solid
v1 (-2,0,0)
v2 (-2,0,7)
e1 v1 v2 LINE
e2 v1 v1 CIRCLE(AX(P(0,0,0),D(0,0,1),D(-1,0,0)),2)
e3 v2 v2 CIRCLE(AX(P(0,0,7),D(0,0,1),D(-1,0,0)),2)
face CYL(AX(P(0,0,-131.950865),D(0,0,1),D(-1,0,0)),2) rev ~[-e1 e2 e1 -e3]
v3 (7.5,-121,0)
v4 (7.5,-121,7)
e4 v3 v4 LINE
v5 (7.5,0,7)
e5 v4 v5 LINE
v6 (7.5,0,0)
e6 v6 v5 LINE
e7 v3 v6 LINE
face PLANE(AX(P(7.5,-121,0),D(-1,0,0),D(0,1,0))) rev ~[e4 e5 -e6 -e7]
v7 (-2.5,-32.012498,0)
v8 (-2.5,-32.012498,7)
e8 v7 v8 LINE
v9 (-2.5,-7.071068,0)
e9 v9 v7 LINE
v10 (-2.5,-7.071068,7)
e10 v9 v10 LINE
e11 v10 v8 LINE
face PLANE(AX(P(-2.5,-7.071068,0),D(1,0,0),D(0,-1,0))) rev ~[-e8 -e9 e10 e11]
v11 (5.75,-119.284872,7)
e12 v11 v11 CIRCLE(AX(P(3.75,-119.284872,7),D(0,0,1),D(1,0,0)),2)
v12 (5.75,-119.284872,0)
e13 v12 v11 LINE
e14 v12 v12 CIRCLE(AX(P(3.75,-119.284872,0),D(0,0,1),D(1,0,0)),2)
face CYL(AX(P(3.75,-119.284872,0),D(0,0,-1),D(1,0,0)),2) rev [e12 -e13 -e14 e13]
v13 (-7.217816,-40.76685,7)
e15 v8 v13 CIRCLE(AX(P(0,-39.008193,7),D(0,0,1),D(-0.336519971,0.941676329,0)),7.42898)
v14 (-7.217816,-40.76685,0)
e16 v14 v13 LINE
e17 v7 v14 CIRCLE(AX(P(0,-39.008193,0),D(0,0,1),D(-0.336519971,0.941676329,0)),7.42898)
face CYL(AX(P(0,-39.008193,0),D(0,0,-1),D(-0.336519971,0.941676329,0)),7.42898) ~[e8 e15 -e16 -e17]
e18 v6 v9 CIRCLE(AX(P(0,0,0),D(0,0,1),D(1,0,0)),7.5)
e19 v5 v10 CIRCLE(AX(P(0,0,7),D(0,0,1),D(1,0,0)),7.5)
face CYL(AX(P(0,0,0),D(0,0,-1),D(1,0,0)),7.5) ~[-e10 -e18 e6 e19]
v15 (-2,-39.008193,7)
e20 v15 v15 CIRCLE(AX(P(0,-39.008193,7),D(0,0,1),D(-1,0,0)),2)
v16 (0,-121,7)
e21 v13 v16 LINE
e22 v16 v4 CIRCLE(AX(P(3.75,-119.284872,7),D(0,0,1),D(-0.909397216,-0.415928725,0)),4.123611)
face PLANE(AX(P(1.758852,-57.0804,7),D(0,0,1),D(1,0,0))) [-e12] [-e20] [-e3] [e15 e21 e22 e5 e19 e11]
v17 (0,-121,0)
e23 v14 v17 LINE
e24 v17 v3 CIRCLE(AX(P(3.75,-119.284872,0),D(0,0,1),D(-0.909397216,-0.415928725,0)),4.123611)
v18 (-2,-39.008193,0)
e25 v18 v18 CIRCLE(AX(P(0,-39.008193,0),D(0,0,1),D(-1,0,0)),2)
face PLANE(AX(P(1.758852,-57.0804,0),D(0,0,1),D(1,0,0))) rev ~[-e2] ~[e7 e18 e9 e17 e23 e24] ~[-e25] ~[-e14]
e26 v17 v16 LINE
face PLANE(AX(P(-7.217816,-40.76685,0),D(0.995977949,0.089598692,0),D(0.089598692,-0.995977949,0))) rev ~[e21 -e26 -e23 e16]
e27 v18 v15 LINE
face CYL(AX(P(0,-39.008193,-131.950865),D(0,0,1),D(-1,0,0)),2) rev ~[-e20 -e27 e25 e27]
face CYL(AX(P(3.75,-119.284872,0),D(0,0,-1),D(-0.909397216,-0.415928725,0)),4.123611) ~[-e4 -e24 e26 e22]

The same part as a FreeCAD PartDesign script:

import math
import FreeCAD as App
import Part
import Sketcher

doc = App.newDocument("Part")
body = doc.addObject("PartDesign::Body", "Body")

# Sketch on XY plane
sketch1 = doc.addObject("Sketcher::SketchObject", "Sketch")
body.addObject(sketch1)
sketch1.AttachmentSupport = (doc.XY_Plane, [""])
sketch1.MapMode = "FlatFace"
sketch1.addGeometry([
    Part.ArcOfCircle(Part.Circle(App.Vector(0, 0, 0), App.Vector(0, 0, 1), 7.5), math.radians(0), math.radians(251)),  # 0
    Part.LineSegment(App.Vector(-2.5, -7.1, 0), App.Vector(-2.5, -32, 0)),  # 1
    Part.ArcOfCircle(Part.Circle(App.Vector(0, -39, 0), App.Vector(0, 0, 1), 7.4), math.radians(110), math.radians(194)),  # 2
    Part.LineSegment(App.Vector(-7.2, -40.8, 0), App.Vector(0, -121, 0)),  # 3
    Part.ArcOfCircle(Part.Circle(App.Vector(3.8, -119.3, 0), App.Vector(0, 0, 1), 4.1), math.radians(-155), math.radians(-25)),  # 4
    Part.LineSegment(App.Vector(7.5, -121, 0), App.Vector(7.5, 0, 0)),  # 5
    Part.Circle(App.Vector(3.8, -119.3, 0), App.Vector(0, 0, 1), 2),  # 6
], False)
sketch1.addConstraint([
    Sketcher.Constraint("Coincident", 0, 2, 1, 1),
    Sketcher.Constraint("Coincident", 1, 2, 2, 1),
    Sketcher.Constraint("Coincident", 2, 2, 3, 1),
    Sketcher.Constraint("Coincident", 3, 2, 4, 1),
    Sketcher.Constraint("Coincident", 4, 2, 5, 1),
    Sketcher.Constraint("Tangent", 5, 2, 0, 1),
    Sketcher.Constraint("Vertical", 1),
    Sketcher.Constraint("Vertical", 5),
    Sketcher.Constraint("Coincident", 0, 3, -1, 1),
    Sketcher.Constraint("Coincident", 6, 3, 4, 3),
    Sketcher.Constraint("PointOnObject", 2, 3, -2),
    Sketcher.Constraint("PointOnObject", 3, 2, -2),
    Sketcher.Constraint("Horizontal", 3, 2, 4, 2),
    Sketcher.Constraint("Diameter", 6, 4.0),
    Sketcher.Constraint("Radius", 0, 7.5),
    Sketcher.Constraint("DistanceY", 5, 1, 5, 2, 121.0),
    Sketcher.Constraint("DistanceX", 0, 2, 5, 2, 10.0),
    Sketcher.Constraint("Radius", 2, 7.42898),
    Sketcher.Constraint("Radius", 4, 4.123611),
    Sketcher.Constraint("DistanceY", 1, 2, 1, 1, 24.941431),
    Sketcher.Constraint("DistanceY", 2, 2, -1, 1, 40.76685),
])
pad1 = doc.addObject("PartDesign::Pad", "Pad")
body.addObject(pad1)
pad1.Profile = sketch1
pad1.Length = 7

# Sketch on XY plane
sketch2 = doc.addObject("Sketcher::SketchObject", "Sketch001")
body.addObject(sketch2)
sketch2.AttachmentSupport = (doc.XY_Plane, [""])
sketch2.MapMode = "FlatFace"
sketch2.addGeometry(Part.Circle(App.Vector(0, 0, 0), App.Vector(0, 0, 1), 2), False)
sketch2.addConstraint([
    Sketcher.Constraint("Coincident", 0, 3, -1, 1),
    Sketcher.Constraint("Diameter", 0, 4.0),
])
doc.recompute()
hole = doc.addObject("PartDesign::Hole", "Hole")
body.addObject(hole)
hole.Profile = sketch2
hole.ThreadType = "None"
hole.Diameter = 4
hole.DepthType = "ThroughAll"
hole.Reversed = True

# Sketch on XY plane
sketch3 = doc.addObject("Sketcher::SketchObject", "Sketch002")
body.addObject(sketch3)
sketch3.AttachmentSupport = (doc.XY_Plane, [""])
sketch3.MapMode = "FlatFace"
sketch3.addGeometry(Part.Circle(App.Vector(0, -39, 0), App.Vector(0, 0, 1), 2), False)
sketch3.addConstraint([
    Sketcher.Constraint("PointOnObject", 0, 3, -2),
    Sketcher.Constraint("Diameter", 0, 4.0),
    Sketcher.Constraint("DistanceY", 0, 3, -1, 1, 39.008193),
])
doc.recompute()
hole2 = doc.addObject("PartDesign::Hole", "Hole001")
body.addObject(hole2)
hole2.Profile = sketch3
hole2.ThreadType = "None"
hole2.Diameter = 4
hole2.DepthType = "ThroughAll"
hole2.Reversed = True

doc.recompute()
